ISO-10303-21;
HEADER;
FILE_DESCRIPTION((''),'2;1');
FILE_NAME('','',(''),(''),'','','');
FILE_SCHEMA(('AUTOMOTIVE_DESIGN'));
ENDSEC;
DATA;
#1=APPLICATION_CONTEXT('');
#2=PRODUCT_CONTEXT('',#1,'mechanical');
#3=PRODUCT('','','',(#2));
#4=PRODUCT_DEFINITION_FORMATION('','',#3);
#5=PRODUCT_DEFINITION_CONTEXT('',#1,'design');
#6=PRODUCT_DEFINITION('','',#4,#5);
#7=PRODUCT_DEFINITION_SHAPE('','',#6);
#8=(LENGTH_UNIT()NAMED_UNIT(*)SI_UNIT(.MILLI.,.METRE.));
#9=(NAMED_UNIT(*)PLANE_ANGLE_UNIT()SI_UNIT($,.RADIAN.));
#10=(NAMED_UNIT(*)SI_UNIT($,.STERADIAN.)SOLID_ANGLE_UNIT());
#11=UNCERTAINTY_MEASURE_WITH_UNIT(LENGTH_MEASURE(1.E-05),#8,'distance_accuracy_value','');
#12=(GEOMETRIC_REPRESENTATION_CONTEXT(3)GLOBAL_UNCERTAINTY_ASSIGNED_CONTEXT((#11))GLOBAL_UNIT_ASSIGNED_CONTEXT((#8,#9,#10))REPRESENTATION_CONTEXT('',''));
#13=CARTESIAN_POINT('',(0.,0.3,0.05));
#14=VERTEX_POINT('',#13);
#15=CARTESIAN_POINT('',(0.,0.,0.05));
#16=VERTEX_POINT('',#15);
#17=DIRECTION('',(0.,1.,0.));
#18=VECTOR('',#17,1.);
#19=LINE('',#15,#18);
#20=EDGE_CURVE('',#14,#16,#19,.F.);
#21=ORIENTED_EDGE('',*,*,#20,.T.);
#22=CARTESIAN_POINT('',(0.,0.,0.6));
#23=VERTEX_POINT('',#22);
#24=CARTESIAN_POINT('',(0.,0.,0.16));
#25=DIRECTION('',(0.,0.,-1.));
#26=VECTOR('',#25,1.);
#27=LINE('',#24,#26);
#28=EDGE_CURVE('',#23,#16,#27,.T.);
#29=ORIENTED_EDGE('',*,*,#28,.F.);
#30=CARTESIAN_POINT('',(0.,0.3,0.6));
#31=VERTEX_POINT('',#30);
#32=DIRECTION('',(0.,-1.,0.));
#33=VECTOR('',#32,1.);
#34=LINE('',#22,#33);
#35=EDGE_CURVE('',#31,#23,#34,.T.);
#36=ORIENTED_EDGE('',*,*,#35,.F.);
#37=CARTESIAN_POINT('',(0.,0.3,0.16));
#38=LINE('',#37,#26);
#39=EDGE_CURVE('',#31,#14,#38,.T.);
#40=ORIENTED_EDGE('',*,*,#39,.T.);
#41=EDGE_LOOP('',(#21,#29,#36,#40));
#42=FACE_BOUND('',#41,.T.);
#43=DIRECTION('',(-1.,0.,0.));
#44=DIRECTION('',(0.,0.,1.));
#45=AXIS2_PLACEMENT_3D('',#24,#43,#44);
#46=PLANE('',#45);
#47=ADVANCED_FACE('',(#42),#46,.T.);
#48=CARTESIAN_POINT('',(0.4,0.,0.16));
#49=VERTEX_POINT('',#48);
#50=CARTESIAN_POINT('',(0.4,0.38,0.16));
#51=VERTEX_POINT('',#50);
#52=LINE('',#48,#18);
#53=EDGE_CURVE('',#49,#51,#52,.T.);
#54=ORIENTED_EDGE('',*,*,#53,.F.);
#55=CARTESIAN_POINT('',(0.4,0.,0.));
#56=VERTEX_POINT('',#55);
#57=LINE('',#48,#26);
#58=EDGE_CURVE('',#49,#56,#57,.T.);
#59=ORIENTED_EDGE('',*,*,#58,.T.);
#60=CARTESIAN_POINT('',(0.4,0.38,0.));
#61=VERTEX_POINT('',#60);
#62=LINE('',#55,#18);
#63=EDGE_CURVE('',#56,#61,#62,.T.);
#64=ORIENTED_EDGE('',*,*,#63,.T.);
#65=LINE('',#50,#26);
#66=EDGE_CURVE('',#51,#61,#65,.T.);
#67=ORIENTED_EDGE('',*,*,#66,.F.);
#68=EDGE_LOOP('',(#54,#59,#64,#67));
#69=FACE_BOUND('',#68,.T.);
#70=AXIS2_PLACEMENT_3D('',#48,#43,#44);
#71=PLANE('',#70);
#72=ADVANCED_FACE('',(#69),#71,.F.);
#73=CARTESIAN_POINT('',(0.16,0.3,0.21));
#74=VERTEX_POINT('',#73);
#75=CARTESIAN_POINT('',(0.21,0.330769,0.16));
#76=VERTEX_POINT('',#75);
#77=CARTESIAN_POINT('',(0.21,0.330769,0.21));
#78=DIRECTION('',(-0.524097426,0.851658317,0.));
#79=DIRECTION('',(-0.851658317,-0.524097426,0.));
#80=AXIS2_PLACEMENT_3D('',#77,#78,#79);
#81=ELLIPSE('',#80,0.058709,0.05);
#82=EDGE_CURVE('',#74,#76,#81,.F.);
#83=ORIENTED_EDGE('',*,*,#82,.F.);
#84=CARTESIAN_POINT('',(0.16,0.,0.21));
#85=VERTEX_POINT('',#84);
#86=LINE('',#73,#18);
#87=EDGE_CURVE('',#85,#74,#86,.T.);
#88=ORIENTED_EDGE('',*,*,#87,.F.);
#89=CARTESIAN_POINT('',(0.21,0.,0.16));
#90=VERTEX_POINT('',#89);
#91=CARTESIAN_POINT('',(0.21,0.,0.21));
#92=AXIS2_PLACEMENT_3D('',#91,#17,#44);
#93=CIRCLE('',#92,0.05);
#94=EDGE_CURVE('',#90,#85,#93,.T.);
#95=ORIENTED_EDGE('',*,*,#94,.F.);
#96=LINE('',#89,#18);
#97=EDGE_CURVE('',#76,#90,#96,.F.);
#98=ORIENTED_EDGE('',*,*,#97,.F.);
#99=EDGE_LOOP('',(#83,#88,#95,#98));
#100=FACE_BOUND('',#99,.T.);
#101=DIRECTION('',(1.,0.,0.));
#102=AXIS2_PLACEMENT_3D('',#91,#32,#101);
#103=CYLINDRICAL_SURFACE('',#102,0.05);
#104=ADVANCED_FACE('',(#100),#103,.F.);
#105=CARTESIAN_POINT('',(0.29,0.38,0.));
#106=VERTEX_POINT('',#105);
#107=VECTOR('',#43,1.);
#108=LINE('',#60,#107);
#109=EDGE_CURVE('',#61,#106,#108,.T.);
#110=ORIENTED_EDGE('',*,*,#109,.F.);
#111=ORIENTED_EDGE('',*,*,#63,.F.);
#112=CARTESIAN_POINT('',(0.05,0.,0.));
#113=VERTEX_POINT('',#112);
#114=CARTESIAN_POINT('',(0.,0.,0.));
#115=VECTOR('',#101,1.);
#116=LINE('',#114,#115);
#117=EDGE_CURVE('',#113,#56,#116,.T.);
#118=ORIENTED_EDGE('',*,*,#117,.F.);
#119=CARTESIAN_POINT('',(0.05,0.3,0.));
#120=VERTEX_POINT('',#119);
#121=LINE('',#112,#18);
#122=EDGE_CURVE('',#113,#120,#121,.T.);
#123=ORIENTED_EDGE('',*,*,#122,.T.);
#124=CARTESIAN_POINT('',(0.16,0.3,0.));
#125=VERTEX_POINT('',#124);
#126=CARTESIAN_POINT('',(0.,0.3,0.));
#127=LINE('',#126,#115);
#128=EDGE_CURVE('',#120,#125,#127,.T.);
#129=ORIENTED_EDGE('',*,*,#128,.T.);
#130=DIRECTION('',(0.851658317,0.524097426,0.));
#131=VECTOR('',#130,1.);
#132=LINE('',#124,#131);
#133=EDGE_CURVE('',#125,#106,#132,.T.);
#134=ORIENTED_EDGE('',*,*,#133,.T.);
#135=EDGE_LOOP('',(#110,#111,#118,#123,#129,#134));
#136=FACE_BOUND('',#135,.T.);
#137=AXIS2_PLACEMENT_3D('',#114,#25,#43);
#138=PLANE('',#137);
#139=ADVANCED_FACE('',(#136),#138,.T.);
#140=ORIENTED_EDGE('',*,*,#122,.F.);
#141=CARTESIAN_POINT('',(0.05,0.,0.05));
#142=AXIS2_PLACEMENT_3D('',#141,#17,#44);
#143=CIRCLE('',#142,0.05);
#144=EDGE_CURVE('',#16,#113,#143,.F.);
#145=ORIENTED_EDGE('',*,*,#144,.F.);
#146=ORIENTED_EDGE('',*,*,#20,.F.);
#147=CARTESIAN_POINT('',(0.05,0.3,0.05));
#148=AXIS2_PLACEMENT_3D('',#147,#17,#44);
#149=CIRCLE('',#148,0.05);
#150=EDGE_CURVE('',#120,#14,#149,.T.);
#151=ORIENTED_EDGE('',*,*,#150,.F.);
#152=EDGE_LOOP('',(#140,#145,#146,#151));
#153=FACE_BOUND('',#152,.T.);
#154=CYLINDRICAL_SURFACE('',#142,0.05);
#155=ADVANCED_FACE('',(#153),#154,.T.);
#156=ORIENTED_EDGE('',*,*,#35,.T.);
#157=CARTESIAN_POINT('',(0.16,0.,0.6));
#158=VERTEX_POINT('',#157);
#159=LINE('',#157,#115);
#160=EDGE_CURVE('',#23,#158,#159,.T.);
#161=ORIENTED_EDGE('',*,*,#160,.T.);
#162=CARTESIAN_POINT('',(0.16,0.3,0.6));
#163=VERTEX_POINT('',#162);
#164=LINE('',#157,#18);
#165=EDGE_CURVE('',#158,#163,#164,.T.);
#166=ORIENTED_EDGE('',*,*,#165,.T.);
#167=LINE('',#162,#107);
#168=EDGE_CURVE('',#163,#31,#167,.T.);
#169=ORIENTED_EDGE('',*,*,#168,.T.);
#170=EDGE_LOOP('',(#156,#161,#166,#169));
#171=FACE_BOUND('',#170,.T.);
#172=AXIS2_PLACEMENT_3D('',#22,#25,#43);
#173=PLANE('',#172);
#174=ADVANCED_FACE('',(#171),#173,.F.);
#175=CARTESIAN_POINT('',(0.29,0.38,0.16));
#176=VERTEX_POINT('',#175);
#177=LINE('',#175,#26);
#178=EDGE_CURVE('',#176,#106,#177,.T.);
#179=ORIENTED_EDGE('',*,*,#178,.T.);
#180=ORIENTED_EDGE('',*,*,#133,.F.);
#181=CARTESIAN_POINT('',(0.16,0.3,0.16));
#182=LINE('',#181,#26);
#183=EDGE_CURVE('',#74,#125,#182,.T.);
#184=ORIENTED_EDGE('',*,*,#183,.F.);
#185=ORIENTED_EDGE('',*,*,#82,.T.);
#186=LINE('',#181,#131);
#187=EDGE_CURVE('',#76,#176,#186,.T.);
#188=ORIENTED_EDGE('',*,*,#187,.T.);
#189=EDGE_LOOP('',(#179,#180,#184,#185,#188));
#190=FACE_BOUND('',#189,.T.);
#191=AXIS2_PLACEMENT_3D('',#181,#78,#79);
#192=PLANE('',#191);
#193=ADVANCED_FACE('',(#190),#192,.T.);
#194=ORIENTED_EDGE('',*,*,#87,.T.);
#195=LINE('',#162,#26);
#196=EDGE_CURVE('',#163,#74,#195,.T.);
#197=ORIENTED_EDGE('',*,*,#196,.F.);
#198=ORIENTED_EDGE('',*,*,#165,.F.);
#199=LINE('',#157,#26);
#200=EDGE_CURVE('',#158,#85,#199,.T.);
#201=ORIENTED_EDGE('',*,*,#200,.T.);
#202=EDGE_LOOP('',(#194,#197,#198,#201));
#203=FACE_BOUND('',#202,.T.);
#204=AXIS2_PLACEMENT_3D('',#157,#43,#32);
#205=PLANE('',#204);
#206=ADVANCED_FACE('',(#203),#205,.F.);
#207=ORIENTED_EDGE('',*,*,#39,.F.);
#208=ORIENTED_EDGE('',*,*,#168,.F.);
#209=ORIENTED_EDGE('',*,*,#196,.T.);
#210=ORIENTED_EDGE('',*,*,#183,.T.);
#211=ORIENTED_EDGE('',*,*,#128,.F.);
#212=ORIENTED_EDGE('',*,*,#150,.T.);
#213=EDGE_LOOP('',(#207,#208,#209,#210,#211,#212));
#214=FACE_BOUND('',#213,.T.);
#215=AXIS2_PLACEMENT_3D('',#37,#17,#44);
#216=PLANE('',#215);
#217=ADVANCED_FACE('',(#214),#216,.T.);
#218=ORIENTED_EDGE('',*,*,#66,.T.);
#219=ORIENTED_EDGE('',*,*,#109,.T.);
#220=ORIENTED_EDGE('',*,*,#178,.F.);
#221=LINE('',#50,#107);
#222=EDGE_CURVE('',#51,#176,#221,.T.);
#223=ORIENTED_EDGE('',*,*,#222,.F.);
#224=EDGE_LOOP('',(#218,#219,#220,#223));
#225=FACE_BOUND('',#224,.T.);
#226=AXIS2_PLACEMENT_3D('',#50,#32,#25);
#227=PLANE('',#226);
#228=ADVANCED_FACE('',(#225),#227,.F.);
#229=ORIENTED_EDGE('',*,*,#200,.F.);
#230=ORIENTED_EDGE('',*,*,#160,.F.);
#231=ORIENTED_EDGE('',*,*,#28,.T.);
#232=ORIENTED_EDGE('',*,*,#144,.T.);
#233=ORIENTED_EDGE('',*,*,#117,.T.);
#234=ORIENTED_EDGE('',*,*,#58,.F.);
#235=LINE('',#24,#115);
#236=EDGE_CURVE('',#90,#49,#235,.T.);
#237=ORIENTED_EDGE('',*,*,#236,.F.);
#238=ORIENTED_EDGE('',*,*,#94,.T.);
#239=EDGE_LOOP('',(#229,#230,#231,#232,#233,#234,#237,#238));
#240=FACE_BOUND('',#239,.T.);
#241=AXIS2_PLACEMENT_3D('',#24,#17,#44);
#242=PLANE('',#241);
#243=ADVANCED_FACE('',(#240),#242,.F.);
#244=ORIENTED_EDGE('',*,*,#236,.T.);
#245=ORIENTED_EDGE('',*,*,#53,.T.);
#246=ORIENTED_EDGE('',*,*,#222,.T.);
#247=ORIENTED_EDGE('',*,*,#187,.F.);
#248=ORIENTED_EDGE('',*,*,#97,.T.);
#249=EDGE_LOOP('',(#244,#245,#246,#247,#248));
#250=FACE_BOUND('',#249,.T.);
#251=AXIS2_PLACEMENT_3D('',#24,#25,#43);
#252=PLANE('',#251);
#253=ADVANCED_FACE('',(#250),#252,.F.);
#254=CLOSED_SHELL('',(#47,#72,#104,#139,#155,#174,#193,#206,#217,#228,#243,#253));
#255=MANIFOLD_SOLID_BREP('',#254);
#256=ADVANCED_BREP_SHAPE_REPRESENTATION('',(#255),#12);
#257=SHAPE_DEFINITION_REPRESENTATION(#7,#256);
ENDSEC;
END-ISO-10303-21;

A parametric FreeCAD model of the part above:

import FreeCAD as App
import Part
import Sketcher
from FreeCAD import Vector
Q = App.Units.Quantity


def edges_at(feature, points):
    """Names of the edges that pass closest to the given points."""
    edges = feature.Shape.Edges
    near = lambda p: min(range(len(edges)), key=lambda i: edges[i].distToShape(Part.Vertex(*p))[0])
    return sorted({f"Edge{near(p) + 1}" for p in points})


def add_polygon(sketch, points):
    """Adds a closed chain of lines whose ends are joined by coincident constraints."""
    first, n = sketch.GeometryCount, len(points)
    for a, b in zip(points, points[1:] + points[:1]):
        sketch.addGeometry(Part.LineSegment(App.Vector(*a, 0), App.Vector(*b, 0)), False)
    for i in range(n):
        sketch.addConstraint(Sketcher.Constraint("Coincident", first + i, 2, first + (i + 1) % n, 1))

doc = App.newDocument("Part")
params = doc.addObject("Spreadsheet::Sheet", "Params")
for row, (alias, value) in enumerate([
    ("sketch1_width", "0.4 mm"),
    ("sketch1_height", "0.3 mm"),
    ("sketch1_width2", "0.11 mm"),
    ("sketch1_width3", "0.16 mm"),
    ("sketch1_height2", "0.38 mm"),
    ("pad1_length", "0.16 mm"),
    ("sketch2_height", "0.3 mm"),
    ("sketch2_width", "0.16 mm"),
    ("pad2_length", "0.44 mm"),
    ("fillet_radius", "0.05 mm"),
], start=1):
    params.set(f"A{row}", alias)
    params.set(f"B{row}", "=" + value)
    params.setAlias(f"B{row}", alias)

body = doc.addObject("PartDesign::Body", "Body")

# Sketch on XY plane
sketch1 = body.newObject("Sketcher::SketchObject", "Sketch")
sketch1.AttachmentSupport = (doc.getObject("XY_Plane"), [""])
sketch1.MapMode = "FlatFace"
add_polygon(sketch1, [(0, 0.3), (0, 0), (0.4, 0), (0.4, 0.38), (0.29, 0.38), (0.16, 0.3)])  # lines 0-5
sketch1.addConstraint(Sketcher.Constraint("Vertical", 0))
sketch1.addConstraint(Sketcher.Constraint("Horizontal", 1))
sketch1.addConstraint(Sketcher.Constraint("Vertical", 2))
sketch1.addConstraint(Sketcher.Constraint("Horizontal", 3))
sketch1.addConstraint(Sketcher.Constraint("Horizontal", 5))
sketch1.addConstraint(Sketcher.Constraint("Coincident", 0, 2, -1, 1))
sketch1.addConstraint(Sketcher.Constraint("DistanceX", 1, 1, 1, 2, Q("0.4 mm")))
sketch1.addConstraint(Sketcher.Constraint("DistanceY", 0, 2, 0, 1, Q("0.3 mm")))
sketch1.addConstraint(Sketcher.Constraint("DistanceX", 3, 2, 3, 1, Q("0.11 mm")))
sketch1.addConstraint(Sketcher.Constraint("DistanceX", 5, 2, 5, 1, Q("0.16 mm")))
sketch1.addConstraint(Sketcher.Constraint("DistanceY", 2, 1, 2, 2, Q("0.38 mm")))
sketch1.setExpression("Constraints[12]", "Params.sketch1_width")
sketch1.setExpression("Constraints[13]", "Params.sketch1_height")
sketch1.setExpression("Constraints[14]", "Params.sketch1_width2")
sketch1.setExpression("Constraints[15]", "Params.sketch1_width3")
sketch1.setExpression("Constraints[16]", "Params.sketch1_height2")
pad1 = body.newObject("PartDesign::Pad", "Pad")
pad1.Profile = sketch1
pad1.setExpression("Length", "Params.pad1_length")

# Sketch on XY plane
sketch2 = body.newObject("Sketcher::SketchObject", "Sketch001")
sketch2.AttachmentSupport = (doc.getObject("XY_Plane"), [""])
sketch2.MapMode = "FlatFace"
sketch2.AttachmentOffset = App.Placement(Vector(0, 0, 0.16), App.Rotation())
add_polygon(sketch2, [(0, 0.3), (0, 0), (0.16, 0), (0.16, 0.3)])  # lines 0-3
sketch2.addConstraint(Sketcher.Constraint("Vertical", 0))
sketch2.addConstraint(Sketcher.Constraint("Horizontal", 1))
sketch2.addConstraint(Sketcher.Constraint("Vertical", 2))
sketch2.addConstraint(Sketcher.Constraint("Horizontal", 3))
sketch2.addConstraint(Sketcher.Constraint("Coincident", 0, 2, -1, 1))
sketch2.addConstraint(Sketcher.Constraint("DistanceY", 0, 2, 0, 1, Q("0.3 mm")))
sketch2.addConstraint(Sketcher.Constraint("DistanceX", 1, 1, 1, 2, Q("0.16 mm")))
sketch2.setExpression("Constraints[9]", "Params.sketch2_height")
sketch2.setExpression("Constraints[10]", "Params.sketch2_width")
pad2 = body.newObject("PartDesign::Pad", "Pad001")
pad2.Profile = sketch2
pad2.setExpression("Length", "Params.pad2_length")
doc.recompute()

fillet = body.newObject("PartDesign::Fillet", "Fillet")
fillet.Base = (pad2, edges_at(pad2, [(0.16, 0.15, 0.16), (0, 0.15, 0)]))
fillet.setExpression("Radius", "Params.fillet_radius")

doc.recompute()
